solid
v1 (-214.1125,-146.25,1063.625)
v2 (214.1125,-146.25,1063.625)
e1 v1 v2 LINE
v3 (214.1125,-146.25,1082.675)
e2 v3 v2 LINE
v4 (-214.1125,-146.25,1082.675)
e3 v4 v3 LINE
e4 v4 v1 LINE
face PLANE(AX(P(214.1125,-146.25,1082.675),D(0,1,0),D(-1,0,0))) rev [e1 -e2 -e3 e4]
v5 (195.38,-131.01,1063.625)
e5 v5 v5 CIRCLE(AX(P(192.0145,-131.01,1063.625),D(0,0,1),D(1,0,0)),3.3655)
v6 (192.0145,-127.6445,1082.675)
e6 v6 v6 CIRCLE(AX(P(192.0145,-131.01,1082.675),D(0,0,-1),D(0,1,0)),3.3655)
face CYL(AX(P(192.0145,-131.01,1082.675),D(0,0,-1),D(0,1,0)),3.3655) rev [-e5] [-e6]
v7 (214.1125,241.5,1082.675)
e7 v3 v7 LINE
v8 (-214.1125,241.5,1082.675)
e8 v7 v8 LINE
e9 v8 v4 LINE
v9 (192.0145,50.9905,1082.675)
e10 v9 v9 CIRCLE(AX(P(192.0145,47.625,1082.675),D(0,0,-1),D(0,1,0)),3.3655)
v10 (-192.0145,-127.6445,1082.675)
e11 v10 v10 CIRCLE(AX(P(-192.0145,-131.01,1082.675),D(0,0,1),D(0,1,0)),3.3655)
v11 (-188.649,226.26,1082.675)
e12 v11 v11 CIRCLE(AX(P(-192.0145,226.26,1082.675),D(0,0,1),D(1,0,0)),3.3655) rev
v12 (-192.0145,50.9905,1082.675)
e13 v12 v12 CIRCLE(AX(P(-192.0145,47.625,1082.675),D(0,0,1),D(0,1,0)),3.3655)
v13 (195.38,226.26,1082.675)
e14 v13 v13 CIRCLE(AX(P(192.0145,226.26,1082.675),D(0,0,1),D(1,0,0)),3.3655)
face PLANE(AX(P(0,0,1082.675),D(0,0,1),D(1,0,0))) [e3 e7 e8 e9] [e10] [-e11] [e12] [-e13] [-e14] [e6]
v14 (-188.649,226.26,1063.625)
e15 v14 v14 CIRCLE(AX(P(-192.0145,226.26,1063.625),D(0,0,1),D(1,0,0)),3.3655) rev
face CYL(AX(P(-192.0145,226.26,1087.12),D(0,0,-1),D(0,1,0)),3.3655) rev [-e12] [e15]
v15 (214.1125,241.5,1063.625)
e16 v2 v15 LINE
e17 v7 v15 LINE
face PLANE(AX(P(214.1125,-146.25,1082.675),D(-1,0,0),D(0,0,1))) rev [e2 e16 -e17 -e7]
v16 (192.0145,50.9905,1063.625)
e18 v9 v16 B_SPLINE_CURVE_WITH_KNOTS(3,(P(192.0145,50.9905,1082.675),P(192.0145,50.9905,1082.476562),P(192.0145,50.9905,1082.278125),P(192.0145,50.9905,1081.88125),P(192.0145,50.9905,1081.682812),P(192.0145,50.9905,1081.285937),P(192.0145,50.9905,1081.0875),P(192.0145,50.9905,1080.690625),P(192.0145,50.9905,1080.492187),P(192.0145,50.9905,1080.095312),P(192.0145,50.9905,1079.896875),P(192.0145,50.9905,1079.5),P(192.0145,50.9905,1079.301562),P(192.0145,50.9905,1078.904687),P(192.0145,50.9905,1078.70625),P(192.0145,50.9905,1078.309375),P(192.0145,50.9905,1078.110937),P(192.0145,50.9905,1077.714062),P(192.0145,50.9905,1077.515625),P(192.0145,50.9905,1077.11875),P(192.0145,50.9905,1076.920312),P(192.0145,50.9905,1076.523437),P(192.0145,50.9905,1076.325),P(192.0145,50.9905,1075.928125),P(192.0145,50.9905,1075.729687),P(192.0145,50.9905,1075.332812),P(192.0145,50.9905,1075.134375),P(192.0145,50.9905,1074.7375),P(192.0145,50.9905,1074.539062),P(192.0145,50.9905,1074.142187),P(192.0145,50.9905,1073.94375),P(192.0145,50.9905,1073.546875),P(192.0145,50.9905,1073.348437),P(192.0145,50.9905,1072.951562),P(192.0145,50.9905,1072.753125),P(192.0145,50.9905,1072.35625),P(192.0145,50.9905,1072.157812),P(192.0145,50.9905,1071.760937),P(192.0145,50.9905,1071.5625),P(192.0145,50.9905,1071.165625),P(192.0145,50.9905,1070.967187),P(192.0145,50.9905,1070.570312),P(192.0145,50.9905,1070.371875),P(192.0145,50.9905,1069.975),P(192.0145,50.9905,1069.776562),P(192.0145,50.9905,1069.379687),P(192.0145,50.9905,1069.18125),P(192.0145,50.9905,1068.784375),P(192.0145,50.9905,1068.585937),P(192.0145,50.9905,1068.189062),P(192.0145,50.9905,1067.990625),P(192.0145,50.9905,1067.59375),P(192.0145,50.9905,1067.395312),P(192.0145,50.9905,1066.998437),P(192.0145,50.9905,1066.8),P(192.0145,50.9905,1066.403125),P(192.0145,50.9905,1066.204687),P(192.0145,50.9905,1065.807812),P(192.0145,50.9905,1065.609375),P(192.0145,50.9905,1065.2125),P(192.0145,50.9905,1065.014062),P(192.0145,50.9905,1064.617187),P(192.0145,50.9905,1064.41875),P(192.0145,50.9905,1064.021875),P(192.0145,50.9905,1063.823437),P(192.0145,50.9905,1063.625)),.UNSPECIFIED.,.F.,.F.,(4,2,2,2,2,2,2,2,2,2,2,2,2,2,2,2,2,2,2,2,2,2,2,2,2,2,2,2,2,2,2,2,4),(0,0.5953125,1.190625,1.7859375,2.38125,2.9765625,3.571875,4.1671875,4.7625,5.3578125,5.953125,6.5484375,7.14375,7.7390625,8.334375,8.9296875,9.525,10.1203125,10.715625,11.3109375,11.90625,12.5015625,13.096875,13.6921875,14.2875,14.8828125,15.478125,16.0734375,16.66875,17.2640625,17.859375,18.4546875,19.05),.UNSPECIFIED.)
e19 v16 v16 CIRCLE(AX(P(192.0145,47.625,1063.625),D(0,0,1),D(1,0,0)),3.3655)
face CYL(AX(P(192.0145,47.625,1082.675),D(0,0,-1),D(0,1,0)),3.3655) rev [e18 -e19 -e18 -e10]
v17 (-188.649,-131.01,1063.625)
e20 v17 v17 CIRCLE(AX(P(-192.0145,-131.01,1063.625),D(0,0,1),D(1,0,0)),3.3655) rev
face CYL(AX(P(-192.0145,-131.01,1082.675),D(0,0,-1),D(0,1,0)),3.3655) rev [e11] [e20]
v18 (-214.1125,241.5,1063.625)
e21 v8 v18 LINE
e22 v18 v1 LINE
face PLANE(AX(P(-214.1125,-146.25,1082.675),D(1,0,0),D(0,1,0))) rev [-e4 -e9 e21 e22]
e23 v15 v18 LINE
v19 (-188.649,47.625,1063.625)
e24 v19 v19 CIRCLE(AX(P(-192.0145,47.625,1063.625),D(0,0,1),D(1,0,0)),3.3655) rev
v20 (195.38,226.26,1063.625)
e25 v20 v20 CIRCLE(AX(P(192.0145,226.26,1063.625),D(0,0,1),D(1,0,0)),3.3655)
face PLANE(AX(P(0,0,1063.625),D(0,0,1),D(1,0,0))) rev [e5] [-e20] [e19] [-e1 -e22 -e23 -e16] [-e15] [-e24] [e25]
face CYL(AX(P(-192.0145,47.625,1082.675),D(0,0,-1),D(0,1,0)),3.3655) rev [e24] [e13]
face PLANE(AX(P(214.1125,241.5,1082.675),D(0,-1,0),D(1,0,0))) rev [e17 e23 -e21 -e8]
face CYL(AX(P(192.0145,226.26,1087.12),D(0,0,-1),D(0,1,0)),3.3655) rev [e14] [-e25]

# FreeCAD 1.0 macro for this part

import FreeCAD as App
import Part
import Sketcher
Q = App.Units.Quantity


def add_polygon(sketch, points):
    """Adds a closed chain of lines whose ends are joined by coincident constraints."""
    first, n = sketch.GeometryCount, len(points)
    for a, b in zip(points, points[1:] + points[:1]):
        sketch.addGeometry(Part.LineSegment(App.Vector(*a, 0), App.Vector(*b, 0)), False)
    for i in range(n):
        sketch.addConstraint(Sketcher.Constraint("Coincident", first + i, 2, first + (i + 1) % n, 1))

doc = App.newDocument("Part")
body = doc.addObject("PartDesign::Body", "Body")

# Sketch on XY plane
sketch1 = doc.addObject("Sketcher::SketchObject", "Sketch")
body.addObject(sketch1)
sketch1.AttachmentSupport = (doc.XY_Plane, [""])
sketch1.MapMode = "FlatFace"
sketch1.AttachmentOffset = App.Placement(App.Vector(0, 0, 41.875 * 25.4), App.Rotation())
add_polygon(sketch1, [(-214.1125, 241.5), (-214.1125, -146.25), (214.1125, -146.25), (214.1125, 241.5)])  # lines 0-3
sketch1.addConstraint([
    Sketcher.Constraint("Vertical", 0),
    Sketcher.Constraint("Horizontal", 1),
    Sketcher.Constraint("Vertical", 2),
    Sketcher.Constraint("Horizontal", 3),
    Sketcher.Constraint("DistanceX", 1, 1, 1, 2, Q("428.225 mm")),
    Sketcher.Constraint("DistanceY", 0, 2, 0, 1, Q("387.75 mm")),
    Sketcher.Constraint("DistanceX", 0, 2, -1, 1, Q("214.1125 mm")),
    Sketcher.Constraint("DistanceY", 0, 2, -1, 1, Q("146.25 mm")),
])
pad1 = doc.addObject("PartDesign::Pad", "Pad")
body.addObject(pad1)
pad1.Profile = sketch1
pad1.Length = Q("0.75 in")

# Sketch on XY plane
sketch2 = doc.addObject("Sketcher::SketchObject", "Sketch001")
body.addObject(sketch2)
sketch2.AttachmentSupport = (doc.XY_Plane, [""])
sketch2.MapMode = "FlatFace"
sketch2.AttachmentOffset = App.Placement(App.Vector(0, 0, 41.8 * 25.4), App.Rotation())
sketch2.addGeometry(Part.Circle(App.Vector(192.0145, -131.01, 0), App.Vector(0, 0, 1), 3.3655), False)
sketch2.addConstraint([
    Sketcher.Constraint("Diameter", 0, Q("0.265 in")),
    Sketcher.Constraint("DistanceX", -1, 1, 0, 3, Q("192.0145 mm")),
    Sketcher.Constraint("DistanceY", 0, 3, -1, 1, Q("131.01 mm")),
])
pocket1 = doc.addObject("PartDesign::Pocket", "Pocket")
body.addObject(pocket1)
pocket1.Profile = sketch2
pocket1.Type = "ThroughAll"
pocket1.Reversed = True

# Sketch on XY plane
sketch3 = doc.addObject("Sketcher::SketchObject", "Sketch002")
body.addObject(sketch3)
sketch3.AttachmentSupport = (doc.XY_Plane, [""])
sketch3.MapMode = "FlatFace"
sketch3.AttachmentOffset = App.Placement(App.Vector(0, 0, 41.8 * 25.4), App.Rotation())
sketch3.addGeometry(Part.Circle(App.Vector(192.0145, 47.625, 0), App.Vector(0, 0, 1), 3.3655), False)
sketch3.addConstraint([
    Sketcher.Constraint("Diameter", 0, Q("0.265 in")),
    Sketcher.Constraint("DistanceY", -1, 1, 0, 3, Q("1.875 in")),
    Sketcher.Constraint("DistanceX", -1, 1, 0, 3, Q("192.0145 mm")),
])
pocket2 = doc.addObject("PartDesign::Pocket", "Pocket001")
body.addObject(pocket2)
pocket2.Profile = sketch3
pocket2.Type = "ThroughAll"
pocket2.Reversed = True

# Sketch on XY plane
sketch4 = doc.addObject("Sketcher::SketchObject", "Sketch003")
body.addObject(sketch4)
sketch4.AttachmentSupport = (doc.XY_Plane, [""])
sketch4.MapMode = "FlatFace"
sketch4.AttachmentOffset = App.Placement(App.Vector(0, 0, 41.8 * 25.4), App.Rotation())
sketch4.addGeometry(Part.Circle(App.Vector(192.0145, 226.26, 0), App.Vector(0, 0, 1), 3.3655), False)
sketch4.addConstraint([
    Sketcher.Constraint("Diameter", 0, Q("0.265 in")),
    Sketcher.Constraint("DistanceX", -1, 1, 0, 3, Q("192.0145 mm")),
    Sketcher.Constraint("DistanceY", -1, 1, 0, 3, Q("226.26 mm")),
])
pocket3 = doc.addObject("PartDesign::Pocket", "Pocket002")
body.addObject(pocket3)
pocket3.Profile = sketch4
pocket3.Length = Q("1 in")
pocket3.Reversed = True
doc.recompute()

mirrored = doc.addObject("PartDesign::Mirrored", "Mirrored")
body.addObject(mirrored)
mirrored.Originals = [pocket1, pocket2, pocket3]
mirrored.MirrorPlane = (doc.YZ_Plane, [""])
body.Tip = mirrored

doc.recompute()
